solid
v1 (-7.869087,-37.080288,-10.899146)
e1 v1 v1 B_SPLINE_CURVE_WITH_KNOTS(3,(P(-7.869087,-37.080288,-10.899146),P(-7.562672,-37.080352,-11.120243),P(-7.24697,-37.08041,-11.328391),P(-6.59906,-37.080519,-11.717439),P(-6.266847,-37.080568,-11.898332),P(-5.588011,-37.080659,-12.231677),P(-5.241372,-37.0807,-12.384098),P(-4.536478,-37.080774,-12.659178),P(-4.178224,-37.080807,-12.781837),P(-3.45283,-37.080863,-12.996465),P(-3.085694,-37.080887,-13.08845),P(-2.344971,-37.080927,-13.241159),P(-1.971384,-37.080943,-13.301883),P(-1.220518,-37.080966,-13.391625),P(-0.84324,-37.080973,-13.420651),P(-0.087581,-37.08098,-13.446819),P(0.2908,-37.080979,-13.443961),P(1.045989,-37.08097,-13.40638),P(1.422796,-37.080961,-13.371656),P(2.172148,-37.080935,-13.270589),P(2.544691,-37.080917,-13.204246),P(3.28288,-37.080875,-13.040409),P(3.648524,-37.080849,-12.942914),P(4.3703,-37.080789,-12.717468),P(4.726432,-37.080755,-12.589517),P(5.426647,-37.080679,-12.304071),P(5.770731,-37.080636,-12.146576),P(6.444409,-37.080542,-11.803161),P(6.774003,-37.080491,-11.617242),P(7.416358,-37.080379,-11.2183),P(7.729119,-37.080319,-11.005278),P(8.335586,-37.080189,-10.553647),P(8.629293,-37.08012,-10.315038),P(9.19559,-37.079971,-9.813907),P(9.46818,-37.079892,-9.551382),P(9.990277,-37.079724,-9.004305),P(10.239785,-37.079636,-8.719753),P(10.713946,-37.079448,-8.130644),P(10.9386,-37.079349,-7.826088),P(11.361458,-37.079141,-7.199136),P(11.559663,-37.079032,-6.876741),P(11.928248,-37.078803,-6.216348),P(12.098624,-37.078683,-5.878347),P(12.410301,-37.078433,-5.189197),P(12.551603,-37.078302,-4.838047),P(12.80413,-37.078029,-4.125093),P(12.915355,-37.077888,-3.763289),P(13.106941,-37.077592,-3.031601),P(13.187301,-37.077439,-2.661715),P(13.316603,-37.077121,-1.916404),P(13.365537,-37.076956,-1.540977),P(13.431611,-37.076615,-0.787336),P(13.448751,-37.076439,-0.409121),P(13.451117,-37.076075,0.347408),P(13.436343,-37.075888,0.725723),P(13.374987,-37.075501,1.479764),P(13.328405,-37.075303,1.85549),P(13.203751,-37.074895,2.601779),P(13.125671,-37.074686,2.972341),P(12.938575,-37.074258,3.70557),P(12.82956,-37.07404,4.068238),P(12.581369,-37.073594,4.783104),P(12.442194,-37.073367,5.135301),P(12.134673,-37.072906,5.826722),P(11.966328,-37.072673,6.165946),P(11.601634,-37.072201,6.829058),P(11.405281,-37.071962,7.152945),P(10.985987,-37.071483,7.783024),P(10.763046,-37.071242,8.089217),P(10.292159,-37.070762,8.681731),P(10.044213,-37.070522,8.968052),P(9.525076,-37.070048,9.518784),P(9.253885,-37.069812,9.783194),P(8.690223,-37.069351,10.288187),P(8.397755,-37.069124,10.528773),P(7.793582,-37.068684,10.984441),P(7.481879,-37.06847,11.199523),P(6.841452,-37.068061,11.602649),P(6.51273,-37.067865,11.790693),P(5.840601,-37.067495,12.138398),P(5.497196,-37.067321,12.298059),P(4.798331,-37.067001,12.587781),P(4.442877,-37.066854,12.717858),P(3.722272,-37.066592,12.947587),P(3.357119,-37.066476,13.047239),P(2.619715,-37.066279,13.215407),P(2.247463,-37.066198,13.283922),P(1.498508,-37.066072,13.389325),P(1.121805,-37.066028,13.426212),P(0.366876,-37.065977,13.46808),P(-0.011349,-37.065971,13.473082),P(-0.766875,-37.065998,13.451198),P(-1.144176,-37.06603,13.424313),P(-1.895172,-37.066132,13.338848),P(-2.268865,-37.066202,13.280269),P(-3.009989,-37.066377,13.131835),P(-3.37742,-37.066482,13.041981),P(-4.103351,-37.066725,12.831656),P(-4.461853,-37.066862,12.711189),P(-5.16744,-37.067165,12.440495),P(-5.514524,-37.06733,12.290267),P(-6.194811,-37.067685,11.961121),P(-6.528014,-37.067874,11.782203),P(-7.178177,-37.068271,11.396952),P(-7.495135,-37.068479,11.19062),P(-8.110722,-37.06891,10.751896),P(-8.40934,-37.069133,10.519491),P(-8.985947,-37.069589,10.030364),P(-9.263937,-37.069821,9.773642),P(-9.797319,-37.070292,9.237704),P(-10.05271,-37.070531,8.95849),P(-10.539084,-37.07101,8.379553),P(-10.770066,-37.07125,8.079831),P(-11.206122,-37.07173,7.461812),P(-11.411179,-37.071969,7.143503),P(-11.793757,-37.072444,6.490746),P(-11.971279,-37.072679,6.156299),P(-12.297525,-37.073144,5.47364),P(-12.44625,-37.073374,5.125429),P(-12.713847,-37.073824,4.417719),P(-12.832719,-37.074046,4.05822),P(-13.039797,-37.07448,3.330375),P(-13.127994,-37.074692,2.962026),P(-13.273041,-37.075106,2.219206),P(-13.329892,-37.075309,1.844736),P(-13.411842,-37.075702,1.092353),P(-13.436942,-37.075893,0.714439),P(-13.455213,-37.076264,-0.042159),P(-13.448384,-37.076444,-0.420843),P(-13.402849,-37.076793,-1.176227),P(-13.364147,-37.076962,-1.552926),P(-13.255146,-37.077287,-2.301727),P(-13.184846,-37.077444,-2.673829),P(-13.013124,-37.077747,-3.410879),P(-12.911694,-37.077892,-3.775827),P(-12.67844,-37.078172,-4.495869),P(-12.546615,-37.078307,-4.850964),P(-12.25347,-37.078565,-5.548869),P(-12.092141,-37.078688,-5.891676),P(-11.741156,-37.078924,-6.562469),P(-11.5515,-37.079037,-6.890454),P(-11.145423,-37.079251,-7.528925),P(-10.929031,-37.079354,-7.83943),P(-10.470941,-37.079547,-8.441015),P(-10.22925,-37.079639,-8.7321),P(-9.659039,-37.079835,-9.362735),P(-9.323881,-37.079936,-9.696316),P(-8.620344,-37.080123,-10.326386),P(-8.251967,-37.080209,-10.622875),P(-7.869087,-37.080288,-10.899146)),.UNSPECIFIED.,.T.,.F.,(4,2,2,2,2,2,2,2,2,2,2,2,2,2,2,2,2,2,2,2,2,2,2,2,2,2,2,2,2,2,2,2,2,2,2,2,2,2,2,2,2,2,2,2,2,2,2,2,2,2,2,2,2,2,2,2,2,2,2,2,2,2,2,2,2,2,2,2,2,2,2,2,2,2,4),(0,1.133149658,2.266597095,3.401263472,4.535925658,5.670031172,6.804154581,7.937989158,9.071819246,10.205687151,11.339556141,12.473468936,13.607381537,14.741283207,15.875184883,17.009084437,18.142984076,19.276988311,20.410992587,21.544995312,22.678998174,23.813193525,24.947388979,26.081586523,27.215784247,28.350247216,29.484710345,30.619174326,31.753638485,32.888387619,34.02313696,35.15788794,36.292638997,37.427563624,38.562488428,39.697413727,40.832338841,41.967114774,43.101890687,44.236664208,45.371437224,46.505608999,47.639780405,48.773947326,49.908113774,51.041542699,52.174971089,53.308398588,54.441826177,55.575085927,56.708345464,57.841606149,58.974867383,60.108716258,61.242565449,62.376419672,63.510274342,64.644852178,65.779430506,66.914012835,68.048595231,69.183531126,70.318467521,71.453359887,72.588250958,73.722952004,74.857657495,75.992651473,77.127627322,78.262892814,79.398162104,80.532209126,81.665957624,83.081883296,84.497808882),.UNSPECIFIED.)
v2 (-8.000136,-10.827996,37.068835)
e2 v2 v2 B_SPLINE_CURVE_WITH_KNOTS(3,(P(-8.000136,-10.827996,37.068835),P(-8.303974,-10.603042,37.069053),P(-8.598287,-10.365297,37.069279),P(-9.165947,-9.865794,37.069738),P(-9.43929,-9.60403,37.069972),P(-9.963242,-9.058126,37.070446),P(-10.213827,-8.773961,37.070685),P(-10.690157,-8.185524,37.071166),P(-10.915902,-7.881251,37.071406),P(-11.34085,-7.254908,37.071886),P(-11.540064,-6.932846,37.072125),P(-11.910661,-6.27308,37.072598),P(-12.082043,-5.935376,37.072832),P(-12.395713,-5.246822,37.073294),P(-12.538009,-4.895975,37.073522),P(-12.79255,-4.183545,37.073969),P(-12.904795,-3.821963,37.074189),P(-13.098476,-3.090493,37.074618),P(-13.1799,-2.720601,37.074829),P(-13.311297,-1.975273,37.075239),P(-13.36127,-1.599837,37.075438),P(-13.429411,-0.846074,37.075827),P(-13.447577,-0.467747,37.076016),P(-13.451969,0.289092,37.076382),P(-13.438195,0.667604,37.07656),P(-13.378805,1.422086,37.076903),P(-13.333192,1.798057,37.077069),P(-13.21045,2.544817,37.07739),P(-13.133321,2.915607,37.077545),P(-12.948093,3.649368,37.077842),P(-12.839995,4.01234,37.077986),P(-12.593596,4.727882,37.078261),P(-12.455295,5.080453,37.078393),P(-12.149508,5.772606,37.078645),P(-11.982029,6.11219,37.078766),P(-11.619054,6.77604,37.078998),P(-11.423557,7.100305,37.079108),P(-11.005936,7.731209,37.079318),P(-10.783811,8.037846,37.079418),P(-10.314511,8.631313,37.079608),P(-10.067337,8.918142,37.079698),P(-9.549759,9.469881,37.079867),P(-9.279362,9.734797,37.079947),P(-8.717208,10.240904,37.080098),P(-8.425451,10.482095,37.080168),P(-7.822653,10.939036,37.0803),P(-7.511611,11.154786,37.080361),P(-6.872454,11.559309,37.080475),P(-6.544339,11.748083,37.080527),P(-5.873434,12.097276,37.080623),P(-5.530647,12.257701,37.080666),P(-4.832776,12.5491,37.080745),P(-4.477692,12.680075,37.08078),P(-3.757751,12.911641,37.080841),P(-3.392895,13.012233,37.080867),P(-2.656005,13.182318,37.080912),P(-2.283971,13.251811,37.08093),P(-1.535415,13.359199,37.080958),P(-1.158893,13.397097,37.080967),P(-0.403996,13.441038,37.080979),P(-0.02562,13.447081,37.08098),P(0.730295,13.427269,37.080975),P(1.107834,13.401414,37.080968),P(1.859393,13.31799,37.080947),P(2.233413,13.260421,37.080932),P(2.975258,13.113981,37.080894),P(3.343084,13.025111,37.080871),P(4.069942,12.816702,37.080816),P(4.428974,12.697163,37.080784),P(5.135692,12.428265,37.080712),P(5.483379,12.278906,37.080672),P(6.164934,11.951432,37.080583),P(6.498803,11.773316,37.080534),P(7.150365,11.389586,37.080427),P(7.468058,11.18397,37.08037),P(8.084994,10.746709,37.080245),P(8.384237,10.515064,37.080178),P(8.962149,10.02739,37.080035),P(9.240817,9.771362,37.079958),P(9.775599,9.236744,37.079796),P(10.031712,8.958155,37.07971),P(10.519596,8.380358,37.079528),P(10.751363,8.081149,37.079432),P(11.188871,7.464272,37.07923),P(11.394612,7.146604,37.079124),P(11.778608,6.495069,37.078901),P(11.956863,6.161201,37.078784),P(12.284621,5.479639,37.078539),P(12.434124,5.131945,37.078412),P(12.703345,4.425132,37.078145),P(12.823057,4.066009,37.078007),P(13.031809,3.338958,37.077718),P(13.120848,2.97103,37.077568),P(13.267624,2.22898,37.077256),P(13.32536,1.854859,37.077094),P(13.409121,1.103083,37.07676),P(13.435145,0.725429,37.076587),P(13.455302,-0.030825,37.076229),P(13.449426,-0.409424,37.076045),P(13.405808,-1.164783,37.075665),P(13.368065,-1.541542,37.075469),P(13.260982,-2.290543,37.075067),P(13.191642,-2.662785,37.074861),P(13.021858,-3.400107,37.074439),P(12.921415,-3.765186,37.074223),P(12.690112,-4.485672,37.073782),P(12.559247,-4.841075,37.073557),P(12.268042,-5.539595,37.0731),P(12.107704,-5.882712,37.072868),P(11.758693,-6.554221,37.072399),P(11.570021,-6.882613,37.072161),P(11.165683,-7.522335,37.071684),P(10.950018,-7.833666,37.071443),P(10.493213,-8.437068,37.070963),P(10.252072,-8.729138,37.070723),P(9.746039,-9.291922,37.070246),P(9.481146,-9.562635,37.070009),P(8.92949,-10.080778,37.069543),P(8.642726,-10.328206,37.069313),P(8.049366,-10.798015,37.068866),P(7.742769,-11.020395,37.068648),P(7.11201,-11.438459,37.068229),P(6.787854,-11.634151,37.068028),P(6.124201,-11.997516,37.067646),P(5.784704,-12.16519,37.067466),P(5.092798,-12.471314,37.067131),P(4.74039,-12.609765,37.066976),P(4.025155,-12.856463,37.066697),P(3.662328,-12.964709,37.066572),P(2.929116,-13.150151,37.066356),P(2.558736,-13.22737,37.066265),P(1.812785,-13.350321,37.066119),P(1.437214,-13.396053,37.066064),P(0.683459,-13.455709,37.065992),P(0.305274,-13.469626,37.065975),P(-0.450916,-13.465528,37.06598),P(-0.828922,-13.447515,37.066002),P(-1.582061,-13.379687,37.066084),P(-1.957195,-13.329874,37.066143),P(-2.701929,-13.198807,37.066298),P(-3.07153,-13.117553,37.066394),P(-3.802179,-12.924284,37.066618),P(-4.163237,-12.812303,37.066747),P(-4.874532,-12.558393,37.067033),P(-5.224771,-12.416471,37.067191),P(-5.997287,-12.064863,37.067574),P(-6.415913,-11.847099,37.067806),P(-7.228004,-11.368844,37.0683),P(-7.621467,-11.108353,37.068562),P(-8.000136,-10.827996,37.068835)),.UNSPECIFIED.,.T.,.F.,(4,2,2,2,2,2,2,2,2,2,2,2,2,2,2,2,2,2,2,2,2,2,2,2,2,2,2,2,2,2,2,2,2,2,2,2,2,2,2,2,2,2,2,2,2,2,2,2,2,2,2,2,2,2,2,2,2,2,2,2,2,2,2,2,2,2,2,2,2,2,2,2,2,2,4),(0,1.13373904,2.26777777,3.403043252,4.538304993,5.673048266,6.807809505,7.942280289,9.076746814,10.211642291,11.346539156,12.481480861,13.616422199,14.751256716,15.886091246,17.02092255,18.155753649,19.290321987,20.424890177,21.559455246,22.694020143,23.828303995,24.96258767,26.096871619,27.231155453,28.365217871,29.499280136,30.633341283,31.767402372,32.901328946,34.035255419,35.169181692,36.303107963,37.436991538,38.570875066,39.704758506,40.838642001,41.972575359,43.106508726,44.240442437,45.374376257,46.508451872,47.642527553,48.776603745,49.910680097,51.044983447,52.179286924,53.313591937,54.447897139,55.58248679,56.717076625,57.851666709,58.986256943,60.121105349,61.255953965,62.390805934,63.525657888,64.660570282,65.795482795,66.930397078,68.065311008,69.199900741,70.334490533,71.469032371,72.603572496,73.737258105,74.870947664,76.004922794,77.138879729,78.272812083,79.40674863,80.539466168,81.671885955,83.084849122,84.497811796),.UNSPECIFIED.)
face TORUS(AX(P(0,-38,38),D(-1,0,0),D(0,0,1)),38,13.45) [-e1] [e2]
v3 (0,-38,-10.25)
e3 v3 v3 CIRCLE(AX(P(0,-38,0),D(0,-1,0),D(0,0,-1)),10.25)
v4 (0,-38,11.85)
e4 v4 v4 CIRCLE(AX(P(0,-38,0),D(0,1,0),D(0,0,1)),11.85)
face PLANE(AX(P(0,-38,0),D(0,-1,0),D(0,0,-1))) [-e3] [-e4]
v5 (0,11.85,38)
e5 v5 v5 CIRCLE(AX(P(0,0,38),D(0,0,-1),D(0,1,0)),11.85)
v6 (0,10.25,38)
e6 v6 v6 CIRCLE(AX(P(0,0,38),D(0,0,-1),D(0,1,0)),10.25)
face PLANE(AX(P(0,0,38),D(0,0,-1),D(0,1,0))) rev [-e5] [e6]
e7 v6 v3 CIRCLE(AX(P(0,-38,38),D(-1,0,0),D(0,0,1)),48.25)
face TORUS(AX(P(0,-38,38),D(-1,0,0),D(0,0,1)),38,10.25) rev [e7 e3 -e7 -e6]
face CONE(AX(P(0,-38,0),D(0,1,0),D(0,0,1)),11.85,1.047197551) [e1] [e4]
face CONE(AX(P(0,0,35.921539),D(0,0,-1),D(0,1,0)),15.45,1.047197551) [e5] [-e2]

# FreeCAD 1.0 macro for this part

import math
import FreeCAD as App
import Part
import Sketcher
Q = App.Units.Quantity


def add_polygon(sketch, points):
    """Adds a closed chain of lines whose ends are joined by coincident constraints."""
    first, n = sketch.GeometryCount, len(points)
    for a, b in zip(points, points[1:] + points[:1]):
        sketch.addGeometry(Part.LineSegment(App.Vector(*a, 0), App.Vector(*b, 0)), False)
    for i in range(n):
        sketch.addConstraint(Sketcher.Constraint("Coincident", first + i, 2, first + (i + 1) % n, 1))

doc = App.newDocument("Part")
params = doc.addObject("Spreadsheet::Sheet", "Params")
for row, (alias, value) in enumerate([
    ("sketch1_diameter", "26.9 mm"),
    ("sketch1_diameter2", "20.5 mm"),
    ("sketch2_radius", "38 mm"),
    ("sketch3_height", "3.6 mm"),
    ("groove_angle", "360 deg"),
    ("sketch4_width", "3.6 mm"),
    ("groove2_angle", "360 deg"),
], start=1):
    params.set(f"A{row}", alias)
    params.set(f"B{row}", "=" + value)
    params.setAlias(f"B{row}", alias)

body = doc.addObject("PartDesign::Body", "Body")

sketch1 = body.newObject("Sketcher::SketchObject", "Sketch")
sketch1.AttachmentSupport = (doc.getObject("XZ_Plane"), [""])
sketch1.MapMode = "FlatFace"
sketch1.AttachmentOffset = App.Placement(App.Vector(0, 0, 38), App.Rotation())
sketch1.addGeometry(Part.Circle(App.Vector(0, 0, 0), App.Vector(0, 0, 1), 13.45), False)
sketch1.addGeometry(Part.Circle(App.Vector(0, 0, 0), App.Vector(0, 0, 1), 10.25), False)
sketch1.addConstraint(Sketcher.Constraint("Coincident", 0, 3, -1, 1))
sketch1.addConstraint(Sketcher.Constraint("Coincident", 1, 3, -1, 1))
sketch1.addConstraint(Sketcher.Constraint("Diameter", 0, Q("26.9 mm")))
sketch1.addConstraint(Sketcher.Constraint("Diameter", 1, Q("20.5 mm")))
sketch1.setExpression("Constraints[2]", "Params.sketch1_diameter")
sketch1.setExpression("Constraints[3]", "Params.sketch1_diameter2")

sketch2 = body.newObject("Sketcher::SketchObject", "Sketch001")
sketch2.AttachmentSupport = (doc.getObject("YZ_Plane"), [""])
sketch2.MapMode = "FlatFace"
sketch2.addGeometry(Part.ArcOfCircle(Part.Circle(App.Vector(-38, 38, 0), App.Vector(0, 0, 1), 38), math.radians(-90), math.radians(0)), False)
sketch2.addConstraint(Sketcher.Constraint("PointOnObject", 0, 1, -1))
sketch2.addConstraint(Sketcher.Constraint("PointOnObject", 0, 2, -2))
sketch2.addConstraint(Sketcher.Constraint("Radius", 0, Q("38 mm")))
sketch2.addConstraint(Sketcher.Constraint("DistanceX", 0, 1, -1, 1, Q("38 mm")))
sketch2.addConstraint(Sketcher.Constraint("DistanceY", -1, 1, 0, 2, Q("38 mm")))
sketch2.setExpression("Constraints[2]", "Params.sketch2_radius")
doc.recompute()

additivepipe = body.newObject("PartDesign::AdditivePipe", "AdditivePipe")
additivepipe.Profile = sketch1
additivepipe.Spine = (sketch2, ["Edge1"])

sketch3 = body.newObject("Sketcher::SketchObject", "Sketch002")
sketch3.AttachmentSupport = (doc.getObject("YZ_Plane"), [""])
sketch3.MapMode = "FlatFace"
add_polygon(sketch3, [(-35.921539, -15.45), (-38, -11.85), (-38, -15.45)])
sketch3.addConstraint(Sketcher.Constraint("Vertical", 1))
sketch3.addConstraint(Sketcher.Constraint("Horizontal", 2))
sketch3.addConstraint(Sketcher.Constraint("Angle", 0, Q("120 deg")))
sketch3.addConstraint(Sketcher.Constraint("DistanceY", 1, 2, 1, 1, Q("3.6 mm")))
sketch3.addConstraint(Sketcher.Constraint("DistanceX", 0, 2, -1, 1, Q("38 mm")))
sketch3.addConstraint(Sketcher.Constraint("DistanceY", 0, 2, -1, 1, Q("11.85 mm")))
sketch3.setExpression("Constraints[6]", "Params.sketch3_height")
groove = body.newObject("PartDesign::Groove", "Groove")
groove.Profile = sketch3
groove.ReferenceAxis = (sketch3, ["H_Axis"])
groove.setExpression("Angle", "Params.groove_angle")

sketch4 = body.newObject("Sketcher::SketchObject", "Sketch003")
sketch4.AttachmentSupport = (doc.getObject("YZ_Plane"), [""])
sketch4.MapMode = "FlatFace"
add_polygon(sketch4, [(11.85, 38), (15.45, 35.921539), (15.45, 38)])
sketch4.addConstraint(Sketcher.Constraint("Vertical", 1))
sketch4.addConstraint(Sketcher.Constraint("Horizontal", 2))
sketch4.addConstraint(Sketcher.Constraint("Angle", 0, Q("-30 deg")))
sketch4.addConstraint(Sketcher.Constraint("DistanceX", 2, 2, 2, 1, Q("3.6 mm")))
sketch4.addConstraint(Sketcher.Constraint("DistanceY", -1, 1, 1, 2, Q("38 mm")))
sketch4.addConstraint(Sketcher.Constraint("DistanceX", -1, 1, 0, 2, Q("15.45 mm")))
sketch4.setExpression("Constraints[6]", "Params.sketch4_width")
groove2 = body.newObject("PartDesign::Groove", "Groove001")
groove2.Profile = sketch4
groove2.ReferenceAxis = (sketch4, ["V_Axis"])
groove2.setExpression("Angle", "Params.groove2_angle")

doc.recompute()
